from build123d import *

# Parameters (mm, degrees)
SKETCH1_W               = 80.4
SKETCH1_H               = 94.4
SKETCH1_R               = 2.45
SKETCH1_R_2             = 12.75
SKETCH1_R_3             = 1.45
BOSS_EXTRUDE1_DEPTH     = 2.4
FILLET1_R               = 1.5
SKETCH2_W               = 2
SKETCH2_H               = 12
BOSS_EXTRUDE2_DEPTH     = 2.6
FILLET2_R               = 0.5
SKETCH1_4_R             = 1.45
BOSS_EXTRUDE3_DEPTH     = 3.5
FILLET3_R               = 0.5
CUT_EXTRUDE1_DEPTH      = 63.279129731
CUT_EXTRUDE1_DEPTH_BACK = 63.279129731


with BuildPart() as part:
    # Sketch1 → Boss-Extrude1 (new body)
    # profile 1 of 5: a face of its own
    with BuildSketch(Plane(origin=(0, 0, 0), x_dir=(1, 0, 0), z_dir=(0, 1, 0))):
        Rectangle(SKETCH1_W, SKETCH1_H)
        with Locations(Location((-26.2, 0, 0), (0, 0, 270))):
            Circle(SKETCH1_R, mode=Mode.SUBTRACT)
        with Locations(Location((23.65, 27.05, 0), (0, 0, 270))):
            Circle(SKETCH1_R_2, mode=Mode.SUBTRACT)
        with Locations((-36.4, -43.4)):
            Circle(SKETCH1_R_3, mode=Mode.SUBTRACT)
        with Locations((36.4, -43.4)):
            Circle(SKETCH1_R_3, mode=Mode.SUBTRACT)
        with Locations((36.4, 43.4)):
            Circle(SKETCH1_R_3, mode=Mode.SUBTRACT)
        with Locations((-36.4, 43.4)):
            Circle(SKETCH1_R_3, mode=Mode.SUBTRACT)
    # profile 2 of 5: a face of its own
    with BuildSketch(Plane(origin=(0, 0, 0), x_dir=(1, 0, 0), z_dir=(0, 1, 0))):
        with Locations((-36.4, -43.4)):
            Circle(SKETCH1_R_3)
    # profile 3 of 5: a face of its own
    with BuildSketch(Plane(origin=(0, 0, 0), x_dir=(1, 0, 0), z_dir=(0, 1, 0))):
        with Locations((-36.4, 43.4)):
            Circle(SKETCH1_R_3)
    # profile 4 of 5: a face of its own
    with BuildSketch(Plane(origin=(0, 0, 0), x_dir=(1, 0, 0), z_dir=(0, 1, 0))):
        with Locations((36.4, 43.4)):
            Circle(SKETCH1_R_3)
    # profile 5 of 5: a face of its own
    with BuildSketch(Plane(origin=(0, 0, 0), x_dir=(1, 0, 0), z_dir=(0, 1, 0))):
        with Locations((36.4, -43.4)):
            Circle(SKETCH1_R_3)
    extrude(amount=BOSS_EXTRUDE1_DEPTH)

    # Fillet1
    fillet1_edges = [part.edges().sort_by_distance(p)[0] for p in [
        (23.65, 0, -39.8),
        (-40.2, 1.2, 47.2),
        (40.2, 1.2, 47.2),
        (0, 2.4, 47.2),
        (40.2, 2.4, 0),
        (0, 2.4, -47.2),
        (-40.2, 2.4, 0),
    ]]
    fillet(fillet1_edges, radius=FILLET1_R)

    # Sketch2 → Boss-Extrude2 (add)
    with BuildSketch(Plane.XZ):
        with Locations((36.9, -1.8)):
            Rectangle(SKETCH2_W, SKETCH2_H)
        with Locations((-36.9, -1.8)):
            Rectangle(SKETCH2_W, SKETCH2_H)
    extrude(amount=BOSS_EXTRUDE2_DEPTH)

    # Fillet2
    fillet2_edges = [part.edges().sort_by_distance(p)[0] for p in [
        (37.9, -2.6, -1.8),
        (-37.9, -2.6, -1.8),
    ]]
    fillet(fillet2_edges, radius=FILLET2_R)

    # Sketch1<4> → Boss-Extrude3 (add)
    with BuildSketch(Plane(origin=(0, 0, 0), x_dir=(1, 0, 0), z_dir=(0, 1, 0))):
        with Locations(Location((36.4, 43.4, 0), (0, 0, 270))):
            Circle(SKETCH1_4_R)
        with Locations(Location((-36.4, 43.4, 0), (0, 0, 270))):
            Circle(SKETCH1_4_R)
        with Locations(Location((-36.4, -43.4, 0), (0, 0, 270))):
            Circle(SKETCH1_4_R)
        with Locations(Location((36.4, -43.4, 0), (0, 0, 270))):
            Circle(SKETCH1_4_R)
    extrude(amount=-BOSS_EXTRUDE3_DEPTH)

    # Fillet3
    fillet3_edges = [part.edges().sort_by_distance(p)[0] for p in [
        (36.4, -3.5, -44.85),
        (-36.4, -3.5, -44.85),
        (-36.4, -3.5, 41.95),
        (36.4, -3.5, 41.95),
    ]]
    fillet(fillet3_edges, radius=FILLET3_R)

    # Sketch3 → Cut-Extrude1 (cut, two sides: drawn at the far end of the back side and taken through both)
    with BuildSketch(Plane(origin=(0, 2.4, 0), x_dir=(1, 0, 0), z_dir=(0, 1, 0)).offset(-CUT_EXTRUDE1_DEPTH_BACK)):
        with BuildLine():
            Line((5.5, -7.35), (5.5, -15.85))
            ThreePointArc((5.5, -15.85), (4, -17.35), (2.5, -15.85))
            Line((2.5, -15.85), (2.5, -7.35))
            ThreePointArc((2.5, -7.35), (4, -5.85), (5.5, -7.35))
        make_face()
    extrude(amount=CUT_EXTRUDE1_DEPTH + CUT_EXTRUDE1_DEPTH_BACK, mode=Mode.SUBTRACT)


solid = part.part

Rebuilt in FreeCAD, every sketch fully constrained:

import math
import FreeCAD as App
import Part
import Sketcher

V = App.Vector


def edges_at(feature, points):
    """Names of the edges that pass closest to the given points."""
    edges = feature.Shape.Edges
    near = lambda p: min(range(len(edges)), key=lambda i: edges[i].distToShape(Part.Vertex(*p))[0])
    return sorted({f"Edge{near(p) + 1}" for p in points})

doc = App.newDocument("Part")
body = doc.addObject("PartDesign::Body", "Body")

sketch1 = body.newObject("Sketcher::SketchObject", "Sketch")
sketch1.AttachmentSupport = (doc.getObject("XZ_Plane"), [""])
sketch1.MapMode = "FlatFace"
sketch1.addGeometry([
    Part.LineSegment(V(-40.2, -47.2, 0), V(-40.2, 47.2, 0)),
    Part.LineSegment(V(-40.2, 47.2, 0), V(40.2, 47.2, 0)),
    Part.LineSegment(V(40.2, 47.2, 0), V(40.2, -47.2, 0)),
    Part.LineSegment(V(40.2, -47.2, 0), V(-40.2, -47.2, 0)),
    Part.Circle(V(-26.2, 0, 0), V(0, 0, 1), 2.45),
    Part.Circle(V(23.65, -27.05, 0), V(0, 0, 1), 12.75),
], False)
sketch1.addConstraint([
    Sketcher.Constraint("Coincident", 0, 2, 1, 1),
    Sketcher.Constraint("Coincident", 1, 2, 2, 1),
    Sketcher.Constraint("Coincident", 2, 2, 3, 1),
    Sketcher.Constraint("Coincident", 3, 2, 0, 1),
    Sketcher.Constraint("Vertical", 0),
    Sketcher.Constraint("Horizontal", 1),
    Sketcher.Constraint("Vertical", 2),
    Sketcher.Constraint("Horizontal", 3),
    Sketcher.Constraint("Symmetric", 0, 2, 2, 2, -1, 1),
    Sketcher.Constraint("PointOnObject", 4, 3, -1),
    Sketcher.Constraint("Diameter", 4, 4.9),
    Sketcher.Constraint("Diameter", 5, 25.5),
    Sketcher.Constraint("DistanceX", 1, 1, 1, 2, 80.4),
    Sketcher.Constraint("DistanceY", 0, 1, 0, 2, 94.4),
    Sketcher.Constraint("DistanceX", 0, 2, 4, 3, 14.0),
    Sketcher.Constraint("DistanceX", -1, 1, 5, 3, 23.65),
    Sketcher.Constraint("DistanceY", 5, 3, -1, 1, 27.05),
])
pad1 = body.newObject("PartDesign::Pad", "Pad")
pad1.Profile = sketch1
pad1.Length = 2.4
pad1.Reversed = True
doc.recompute()

fillet = body.newObject("PartDesign::Fillet", "Fillet")
fillet.Base = (pad1, edges_at(pad1, [
    (23.65, 0, -39.8),
    (-40.2, 1.2, 47.2),
    (40.2, 1.2, 47.2),
    (0, 2.4, 47.2),
    (40.2, 2.4, 0),
    (0, 2.4, -47.2),
    (-40.2, 2.4, 0),
]))
fillet.Radius = 1.5

sketch2 = body.newObject("Sketcher::SketchObject", "Sketch001")
sketch2.AttachmentSupport = (doc.getObject("XZ_Plane"), [""])
sketch2.MapMode = "FlatFace"
sketch2.addGeometry([
    Part.LineSegment(V(35.9, 4.2, 0), V(35.9, -7.8, 0)),
    Part.LineSegment(V(35.9, -7.8, 0), V(37.9, -7.8, 0)),
    Part.LineSegment(V(37.9, -7.8, 0), V(37.9, 4.2, 0)),
    Part.LineSegment(V(37.9, 4.2, 0), V(35.9, 4.2, 0)),
    Part.LineSegment(V(-37.9, 4.2, 0), V(-37.9, -7.8, 0)),
    Part.LineSegment(V(-37.9, -7.8, 0), V(-35.9, -7.8, 0)),
    Part.LineSegment(V(-35.9, -7.8, 0), V(-35.9, 4.2, 0)),
    Part.LineSegment(V(-35.9, 4.2, 0), V(-37.9, 4.2, 0)),
], False)
sketch2.addConstraint([
    Sketcher.Constraint("Coincident", 0, 2, 1, 1),
    Sketcher.Constraint("Coincident", 1, 2, 2, 1),
    Sketcher.Constraint("Coincident", 2, 2, 3, 1),
    Sketcher.Constraint("Coincident", 3, 2, 0, 1),
    Sketcher.Constraint("Coincident", 4, 2, 5, 1),
    Sketcher.Constraint("Coincident", 5, 2, 6, 1),
    Sketcher.Constraint("Coincident", 6, 2, 7, 1),
    Sketcher.Constraint("Coincident", 7, 2, 4, 1),
    Sketcher.Constraint("Vertical", 0),
    Sketcher.Constraint("Horizontal", 1),
    Sketcher.Constraint("Vertical", 2),
    Sketcher.Constraint("Horizontal", 3),
    Sketcher.Constraint("Vertical", 4),
    Sketcher.Constraint("Horizontal", 5),
    Sketcher.Constraint("Vertical", 6),
    Sketcher.Constraint("Horizontal", 7),
    Sketcher.Constraint("Symmetric", 1, 2, 4, 2, -2),
    Sketcher.Constraint("Symmetric", 3, 2, 6, 2, -2),
    Sketcher.Constraint("DistanceX", 1, 1, 1, 2, 2.0),
    Sketcher.Constraint("DistanceY", 0, 2, 0, 1, 12.0),
    Sketcher.Constraint("DistanceX", -1, 1, 0, 2, 35.9),
    Sketcher.Constraint("DistanceY", 0, 2, -1, 1, 7.8),
])
pad2 = body.newObject("PartDesign::Pad", "Pad001")
pad2.Profile = sketch2
pad2.Length = 2.6
doc.recompute()

fillet2 = body.newObject("PartDesign::Fillet", "Fillet001")
fillet2.Base = (pad2, edges_at(pad2, [(37.9, -2.6, -1.8), (-37.9, -2.6, -1.8)]))
fillet2.Radius = 0.5

sketch3 = body.newObject("Sketcher::SketchObject", "Sketch002")
sketch3.AttachmentSupport = (doc.getObject("XZ_Plane"), [""])
sketch3.MapMode = "FlatFace"
sketch3.addGeometry([
    Part.Circle(V(36.4, -43.4, 0), V(0, 0, 1), 1.45),
    Part.Circle(V(-36.4, -43.4, 0), V(0, 0, 1), 1.45),
    Part.Circle(V(-36.4, 43.4, 0), V(0, 0, 1), 1.45),
    Part.Circle(V(36.4, 43.4, 0), V(0, 0, 1), 1.45),
], False)
sketch3.addConstraint([
    Sketcher.Constraint("Equal", 0, 1),
    Sketcher.Constraint("Equal", 1, 2),
    Sketcher.Constraint("Equal", 2, 3),
    Sketcher.Constraint("Symmetric", 0, 3, 2, 3, -1, 1),
    Sketcher.Constraint("Symmetric", 1, 3, 3, 3, -1, 1),
    Sketcher.Constraint("Symmetric", 0, 3, 1, 3, -2),
    Sketcher.Constraint("Diameter", 0, 2.9),
    Sketcher.Constraint("DistanceX", -1, 1, 0, 3, 36.4),
    Sketcher.Constraint("DistanceY", 0, 3, -1, 1, 43.4),
])
pad3 = body.newObject("PartDesign::Pad", "Pad002")
pad3.Profile = sketch3
pad3.Length = 3.5
doc.recompute()

fillet3 = body.newObject("PartDesign::Fillet", "Fillet002")
fillet3.Base = (pad3, edges_at(pad3, [
    (36.4, -3.5, -44.85),
    (-36.4, -3.5, -44.85),
    (-36.4, -3.5, 41.95),
    (36.4, -3.5, 41.95),
]))
fillet3.Radius = 0.5

sketch4 = body.newObject("Sketcher::SketchObject", "Sketch003")
sketch4.AttachmentSupport = (doc.getObject("XZ_Plane"), [""])
sketch4.MapMode = "FlatFace"
sketch4.AttachmentOffset = App.Placement(V(0, 0, -2.4), App.Rotation())
sketch4.addGeometry([
    Part.LineSegment(V(5.5, 15.85, 0), V(5.5, 7.35, 0)),
    Part.ArcOfCircle(Part.Circle(V(4, 7.35, 0), V(0, 0, 1), 1.5), math.radians(180), math.radians(360)),
    Part.LineSegment(V(2.5, 7.35, 0), V(2.5, 15.85, 0)),
    Part.ArcOfCircle(Part.Circle(V(4, 15.85, 0), V(0, 0, 1), 1.5), math.radians(0), math.radians(180)),
], False)
sketch4.addConstraint([
    Sketcher.Constraint("Tangent", 0, 2, 1, 2),
    Sketcher.Constraint("Tangent", 1, 1, 2, 1),
    Sketcher.Constraint("Tangent", 2, 2, 3, 2),
    Sketcher.Constraint("Tangent", 3, 1, 0, 1),
    Sketcher.Constraint("Vertical", 0),
    Sketcher.Constraint("Vertical", 2),
    Sketcher.Constraint("Radius", 1, 1.5),
    Sketcher.Constraint("DistanceY", 0, 2, 0, 1, 8.5),
    Sketcher.Constraint("DistanceX", -1, 1, 1, 3, 4.0),
    Sketcher.Constraint("DistanceY", -1, 1, 1, 3, 7.35),
])
pocket1 = body.newObject("PartDesign::Pocket", "Pocket")
pocket1.Profile = sketch4
pocket1.Type = "ThroughAll"
pocket1.Midplane = True

doc.recompute()
